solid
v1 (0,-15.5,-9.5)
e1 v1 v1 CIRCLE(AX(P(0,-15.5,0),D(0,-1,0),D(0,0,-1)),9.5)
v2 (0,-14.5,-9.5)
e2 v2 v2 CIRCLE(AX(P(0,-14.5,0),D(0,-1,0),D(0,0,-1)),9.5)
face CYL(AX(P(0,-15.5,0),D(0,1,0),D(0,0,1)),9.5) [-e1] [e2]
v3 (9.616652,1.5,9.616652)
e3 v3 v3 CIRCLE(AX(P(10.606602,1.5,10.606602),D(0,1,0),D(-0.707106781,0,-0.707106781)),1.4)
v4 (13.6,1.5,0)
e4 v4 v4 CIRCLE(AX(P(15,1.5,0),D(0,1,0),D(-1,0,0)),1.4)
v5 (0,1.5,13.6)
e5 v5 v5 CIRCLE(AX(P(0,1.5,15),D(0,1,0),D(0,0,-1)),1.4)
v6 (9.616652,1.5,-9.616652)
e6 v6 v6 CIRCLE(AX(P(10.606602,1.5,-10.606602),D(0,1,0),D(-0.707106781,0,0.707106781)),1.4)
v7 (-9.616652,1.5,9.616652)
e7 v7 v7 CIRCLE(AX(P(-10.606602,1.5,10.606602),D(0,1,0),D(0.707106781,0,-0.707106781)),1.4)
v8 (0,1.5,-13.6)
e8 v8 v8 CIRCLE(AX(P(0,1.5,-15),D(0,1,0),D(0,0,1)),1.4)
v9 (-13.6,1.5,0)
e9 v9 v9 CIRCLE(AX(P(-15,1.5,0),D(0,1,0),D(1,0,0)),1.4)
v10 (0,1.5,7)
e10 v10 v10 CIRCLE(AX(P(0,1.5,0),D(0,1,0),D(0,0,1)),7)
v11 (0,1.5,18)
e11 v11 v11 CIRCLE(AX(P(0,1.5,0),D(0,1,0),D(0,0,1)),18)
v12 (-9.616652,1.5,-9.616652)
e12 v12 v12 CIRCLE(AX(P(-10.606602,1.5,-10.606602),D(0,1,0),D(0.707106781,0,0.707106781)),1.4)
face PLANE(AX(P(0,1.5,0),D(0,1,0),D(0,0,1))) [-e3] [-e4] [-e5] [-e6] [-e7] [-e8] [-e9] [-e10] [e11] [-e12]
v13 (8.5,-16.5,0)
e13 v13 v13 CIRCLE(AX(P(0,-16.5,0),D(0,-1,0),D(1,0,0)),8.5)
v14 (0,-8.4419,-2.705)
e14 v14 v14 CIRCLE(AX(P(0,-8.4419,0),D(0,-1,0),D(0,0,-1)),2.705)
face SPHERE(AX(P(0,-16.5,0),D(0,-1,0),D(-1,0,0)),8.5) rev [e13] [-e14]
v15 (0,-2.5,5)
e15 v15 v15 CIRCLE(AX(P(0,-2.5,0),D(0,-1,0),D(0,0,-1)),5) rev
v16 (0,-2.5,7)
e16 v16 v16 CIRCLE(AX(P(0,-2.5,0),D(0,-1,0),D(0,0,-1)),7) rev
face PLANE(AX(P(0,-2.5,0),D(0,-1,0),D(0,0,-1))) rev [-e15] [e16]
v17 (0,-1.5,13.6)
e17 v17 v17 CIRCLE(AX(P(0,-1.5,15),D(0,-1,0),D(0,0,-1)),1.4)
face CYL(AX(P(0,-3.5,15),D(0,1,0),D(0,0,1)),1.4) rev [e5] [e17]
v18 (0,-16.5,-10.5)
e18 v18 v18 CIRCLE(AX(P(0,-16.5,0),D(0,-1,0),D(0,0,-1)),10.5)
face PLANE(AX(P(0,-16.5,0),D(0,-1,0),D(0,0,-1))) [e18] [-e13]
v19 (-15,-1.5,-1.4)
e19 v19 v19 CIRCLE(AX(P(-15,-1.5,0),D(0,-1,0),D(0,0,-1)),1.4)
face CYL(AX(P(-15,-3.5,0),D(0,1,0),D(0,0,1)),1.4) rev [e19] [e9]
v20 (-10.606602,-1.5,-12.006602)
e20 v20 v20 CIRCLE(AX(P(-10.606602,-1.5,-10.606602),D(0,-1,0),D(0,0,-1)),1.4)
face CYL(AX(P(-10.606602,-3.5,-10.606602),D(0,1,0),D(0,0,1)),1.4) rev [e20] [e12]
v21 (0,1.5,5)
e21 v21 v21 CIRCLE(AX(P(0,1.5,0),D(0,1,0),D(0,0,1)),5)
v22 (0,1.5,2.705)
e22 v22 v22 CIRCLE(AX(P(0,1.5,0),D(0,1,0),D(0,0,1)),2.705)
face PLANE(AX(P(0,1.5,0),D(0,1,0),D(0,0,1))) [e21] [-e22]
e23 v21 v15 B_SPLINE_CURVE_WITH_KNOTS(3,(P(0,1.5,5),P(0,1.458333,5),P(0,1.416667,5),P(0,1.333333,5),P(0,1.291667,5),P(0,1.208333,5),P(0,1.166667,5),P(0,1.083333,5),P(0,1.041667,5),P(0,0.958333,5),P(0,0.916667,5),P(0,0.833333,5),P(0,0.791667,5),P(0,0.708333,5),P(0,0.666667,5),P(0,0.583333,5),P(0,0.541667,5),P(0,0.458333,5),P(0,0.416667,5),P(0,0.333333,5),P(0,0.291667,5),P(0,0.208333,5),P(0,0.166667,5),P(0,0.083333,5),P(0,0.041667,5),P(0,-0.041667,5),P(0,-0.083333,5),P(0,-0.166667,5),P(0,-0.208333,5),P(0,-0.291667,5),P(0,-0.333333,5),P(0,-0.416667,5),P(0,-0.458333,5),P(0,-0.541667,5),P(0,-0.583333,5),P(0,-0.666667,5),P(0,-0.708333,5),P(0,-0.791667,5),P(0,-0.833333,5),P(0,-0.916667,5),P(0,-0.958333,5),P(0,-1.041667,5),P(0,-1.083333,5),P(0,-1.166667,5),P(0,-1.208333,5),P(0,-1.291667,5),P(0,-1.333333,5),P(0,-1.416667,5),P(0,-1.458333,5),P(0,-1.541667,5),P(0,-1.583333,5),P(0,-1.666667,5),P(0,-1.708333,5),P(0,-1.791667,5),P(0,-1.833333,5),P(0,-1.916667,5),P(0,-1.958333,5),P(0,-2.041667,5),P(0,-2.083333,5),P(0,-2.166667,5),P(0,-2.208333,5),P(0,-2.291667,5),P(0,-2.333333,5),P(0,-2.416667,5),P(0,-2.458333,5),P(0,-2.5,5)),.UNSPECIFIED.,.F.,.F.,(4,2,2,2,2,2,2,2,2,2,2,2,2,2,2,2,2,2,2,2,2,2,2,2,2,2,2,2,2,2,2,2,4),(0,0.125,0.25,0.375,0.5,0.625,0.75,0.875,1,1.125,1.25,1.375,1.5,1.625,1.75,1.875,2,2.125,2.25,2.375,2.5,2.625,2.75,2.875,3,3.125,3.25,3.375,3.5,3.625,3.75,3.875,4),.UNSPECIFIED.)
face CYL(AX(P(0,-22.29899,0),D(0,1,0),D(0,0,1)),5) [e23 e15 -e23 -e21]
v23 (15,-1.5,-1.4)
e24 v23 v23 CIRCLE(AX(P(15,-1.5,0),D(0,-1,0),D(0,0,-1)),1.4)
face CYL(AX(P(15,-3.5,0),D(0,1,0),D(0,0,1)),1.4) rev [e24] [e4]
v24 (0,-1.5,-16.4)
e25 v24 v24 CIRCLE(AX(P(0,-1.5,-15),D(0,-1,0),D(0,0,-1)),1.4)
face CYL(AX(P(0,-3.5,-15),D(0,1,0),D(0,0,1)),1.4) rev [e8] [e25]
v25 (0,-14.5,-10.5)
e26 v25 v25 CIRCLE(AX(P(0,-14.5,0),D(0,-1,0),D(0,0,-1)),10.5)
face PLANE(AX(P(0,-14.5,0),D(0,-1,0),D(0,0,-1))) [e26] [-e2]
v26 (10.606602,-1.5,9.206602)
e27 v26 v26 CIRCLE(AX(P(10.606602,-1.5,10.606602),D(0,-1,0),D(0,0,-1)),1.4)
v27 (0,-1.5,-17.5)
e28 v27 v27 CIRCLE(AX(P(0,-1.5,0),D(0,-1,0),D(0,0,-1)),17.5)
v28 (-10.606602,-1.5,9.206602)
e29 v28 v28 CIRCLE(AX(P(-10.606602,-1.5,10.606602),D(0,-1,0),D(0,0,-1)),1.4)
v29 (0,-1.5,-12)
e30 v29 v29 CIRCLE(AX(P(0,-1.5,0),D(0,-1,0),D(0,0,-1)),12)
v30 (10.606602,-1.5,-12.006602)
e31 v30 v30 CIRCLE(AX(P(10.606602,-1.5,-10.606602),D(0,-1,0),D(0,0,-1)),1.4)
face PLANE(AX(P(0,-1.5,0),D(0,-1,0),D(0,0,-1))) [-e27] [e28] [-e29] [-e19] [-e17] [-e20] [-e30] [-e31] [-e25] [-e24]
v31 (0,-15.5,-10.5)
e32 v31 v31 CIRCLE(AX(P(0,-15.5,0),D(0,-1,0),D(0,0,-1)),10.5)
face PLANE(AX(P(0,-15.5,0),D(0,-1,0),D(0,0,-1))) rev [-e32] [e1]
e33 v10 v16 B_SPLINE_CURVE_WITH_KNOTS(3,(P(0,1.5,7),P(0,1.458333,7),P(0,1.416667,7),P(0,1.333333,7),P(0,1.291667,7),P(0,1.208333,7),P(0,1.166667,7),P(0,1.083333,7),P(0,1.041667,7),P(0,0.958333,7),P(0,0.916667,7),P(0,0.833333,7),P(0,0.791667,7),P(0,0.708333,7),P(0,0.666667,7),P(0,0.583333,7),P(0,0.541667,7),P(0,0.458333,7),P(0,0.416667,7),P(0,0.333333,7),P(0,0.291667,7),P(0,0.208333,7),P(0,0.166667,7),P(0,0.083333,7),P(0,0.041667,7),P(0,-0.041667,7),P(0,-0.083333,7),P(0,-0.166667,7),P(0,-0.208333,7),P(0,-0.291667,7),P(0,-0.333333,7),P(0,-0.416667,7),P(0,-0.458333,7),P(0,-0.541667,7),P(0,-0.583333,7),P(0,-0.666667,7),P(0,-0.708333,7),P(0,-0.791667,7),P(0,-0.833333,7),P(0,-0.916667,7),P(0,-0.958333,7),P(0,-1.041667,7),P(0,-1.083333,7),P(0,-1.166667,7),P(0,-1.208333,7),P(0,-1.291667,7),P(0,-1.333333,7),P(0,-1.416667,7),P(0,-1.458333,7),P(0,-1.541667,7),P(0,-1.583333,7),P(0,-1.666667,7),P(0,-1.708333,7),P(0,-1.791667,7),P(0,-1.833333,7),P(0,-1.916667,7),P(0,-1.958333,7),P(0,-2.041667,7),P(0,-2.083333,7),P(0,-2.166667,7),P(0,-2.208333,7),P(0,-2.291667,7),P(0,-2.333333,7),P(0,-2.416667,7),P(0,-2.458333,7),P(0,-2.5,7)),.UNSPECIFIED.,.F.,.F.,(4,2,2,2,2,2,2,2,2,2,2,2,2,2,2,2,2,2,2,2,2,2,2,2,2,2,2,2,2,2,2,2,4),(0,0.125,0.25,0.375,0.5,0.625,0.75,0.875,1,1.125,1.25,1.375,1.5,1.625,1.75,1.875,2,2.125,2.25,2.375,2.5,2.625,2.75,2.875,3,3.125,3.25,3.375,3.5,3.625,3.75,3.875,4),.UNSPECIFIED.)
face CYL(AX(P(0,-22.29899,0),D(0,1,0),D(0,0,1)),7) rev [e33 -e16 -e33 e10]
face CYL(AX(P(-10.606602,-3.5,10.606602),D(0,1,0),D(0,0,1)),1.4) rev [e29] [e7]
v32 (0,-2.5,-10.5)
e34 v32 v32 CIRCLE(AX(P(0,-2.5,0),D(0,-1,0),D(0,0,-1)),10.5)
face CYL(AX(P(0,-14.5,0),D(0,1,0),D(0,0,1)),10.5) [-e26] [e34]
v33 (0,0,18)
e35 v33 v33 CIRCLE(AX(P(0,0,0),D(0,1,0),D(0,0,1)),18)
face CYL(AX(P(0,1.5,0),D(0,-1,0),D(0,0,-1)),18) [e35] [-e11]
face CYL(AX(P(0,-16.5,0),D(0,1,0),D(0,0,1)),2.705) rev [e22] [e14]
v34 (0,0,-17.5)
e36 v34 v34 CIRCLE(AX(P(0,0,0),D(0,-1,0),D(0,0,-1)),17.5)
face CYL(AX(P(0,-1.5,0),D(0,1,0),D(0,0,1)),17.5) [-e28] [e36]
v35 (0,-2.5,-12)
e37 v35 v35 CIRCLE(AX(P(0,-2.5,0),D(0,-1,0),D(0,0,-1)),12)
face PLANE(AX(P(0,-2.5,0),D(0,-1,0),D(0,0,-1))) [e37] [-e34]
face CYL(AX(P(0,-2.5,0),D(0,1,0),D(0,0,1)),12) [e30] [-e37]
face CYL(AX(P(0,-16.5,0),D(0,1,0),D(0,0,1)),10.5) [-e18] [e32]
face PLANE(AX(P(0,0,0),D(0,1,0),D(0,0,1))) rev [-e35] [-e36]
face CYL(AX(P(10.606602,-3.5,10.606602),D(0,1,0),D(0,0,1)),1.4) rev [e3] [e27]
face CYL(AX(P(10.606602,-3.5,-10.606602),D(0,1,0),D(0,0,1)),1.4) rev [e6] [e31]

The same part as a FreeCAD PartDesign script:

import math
import FreeCAD as App
import Part
import Sketcher

V = App.Vector

doc = App.newDocument("Part")
body = doc.addObject("PartDesign::Body", "Body")

# Sketch on XZ plane
sketch1 = body.newObject("Sketcher::SketchObject", "Sketch")
sketch1.AttachmentSupport = (doc.getObject("XZ_Plane"), [""])
sketch1.MapMode = "FlatFace"
sketch1.addGeometry(Part.Circle(V(0, 0, 0), V(0, 0, 1), 18), False)
sketch1.addConstraint([
    Sketcher.Constraint("Coincident", 0, 3, -1, 1),
    Sketcher.Constraint("Diameter", 0, 36.0),
])
pad1 = body.newObject("PartDesign::Pad", "Pad")
pad1.Profile = sketch1
pad1.Length = 1.5
pad1.Reversed = True

# Sketch on XZ plane
sketch2 = body.newObject("Sketcher::SketchObject", "Sketch001")
sketch2.AttachmentSupport = (doc.getObject("XZ_Plane"), [""])
sketch2.MapMode = "FlatFace"
sketch2.addGeometry(Part.Circle(V(0, 0, 0), V(0, 0, 1), 18), False)
sketch2.addConstraint([
    Sketcher.Constraint("Coincident", 0, 3, -1, 1),
    Sketcher.Constraint("Diameter", 0, 35.0),
])
pad2 = body.newObject("PartDesign::Pad", "Pad001")
pad2.Profile = sketch2
pad2.Length = 1.5

# Sketch on XZ plane
sketch3 = body.newObject("Sketcher::SketchObject", "Sketch002")
sketch3.AttachmentSupport = (doc.getObject("XZ_Plane"), [""])
sketch3.MapMode = "FlatFace"
sketch3.AttachmentOffset = App.Placement(V(0, 0, 1.5), App.Rotation())
sketch3.addGeometry(Part.Circle(V(0, 0, 0), V(0, 0, 1), 12), False)
sketch3.addConstraint([
    Sketcher.Constraint("Coincident", 0, 3, -1, 1),
    Sketcher.Constraint("Diameter", 0, 24.0),
])
pad3 = body.newObject("PartDesign::Pad", "Pad002")
pad3.Profile = sketch3
pad3.Length = 1

# Sketch on XZ plane
sketch4 = body.newObject("Sketcher::SketchObject", "Sketch003")
sketch4.AttachmentSupport = (doc.getObject("XZ_Plane"), [""])
sketch4.MapMode = "FlatFace"
sketch4.AttachmentOffset = App.Placement(V(0, 0, 2.5), App.Rotation())
sketch4.addGeometry(Part.Circle(V(0, 0, 0), V(0, 0, 1), 10), False)
sketch4.addConstraint([
    Sketcher.Constraint("Coincident", 0, 3, -1, 1),
    Sketcher.Constraint("Diameter", 0, 21.0),
])
pad4 = body.newObject("PartDesign::Pad", "Pad003")
pad4.Profile = sketch4
pad4.Length = 12

# Sketch on XZ plane
sketch5 = body.newObject("Sketcher::SketchObject", "Sketch004")
sketch5.AttachmentSupport = (doc.getObject("XZ_Plane"), [""])
sketch5.MapMode = "FlatFace"
sketch5.AttachmentOffset = App.Placement(V(0, 0, 14.5), App.Rotation())
sketch5.addGeometry(Part.Circle(V(0, 0, 0), V(0, 0, 1), 10), False)
sketch5.addConstraint([
    Sketcher.Constraint("Coincident", 0, 3, -1, 1),
    Sketcher.Constraint("Diameter", 0, 19.0),
])
pad5 = body.newObject("PartDesign::Pad", "Pad004")
pad5.Profile = sketch5
pad5.Length = 1

# Sketch on XZ plane
sketch6 = body.newObject("Sketcher::SketchObject", "Sketch005")
sketch6.AttachmentSupport = (doc.getObject("XZ_Plane"), [""])
sketch6.MapMode = "FlatFace"
sketch6.AttachmentOffset = App.Placement(V(0, 0, 15.5), App.Rotation())
sketch6.addGeometry(Part.Circle(V(0, 0, 0), V(0, 0, 1), 10), False)
sketch6.addConstraint([
    Sketcher.Constraint("Coincident", 0, 3, -1, 1),
    Sketcher.Constraint("Diameter", 0, 21.0),
])
pad6 = body.newObject("PartDesign::Pad", "Pad005")
pad6.Profile = sketch6
pad6.Length = 1

# Sketch on XY plane
sketch7 = body.newObject("Sketcher::SketchObject", "Sketch006")
sketch7.AttachmentSupport = (doc.getObject("XY_Plane"), [""])
sketch7.MapMode = "FlatFace"
sketch7.addGeometry([
    Part.LineSegment(V(-8, -16, 0), V(0, -16, 0)),
    Part.LineSegment(V(0, -16, 0), V(0, -8, 0)),
    Part.ArcOfCircle(Part.Circle(V(0, -16, 0), V(0, 0, 1), 8), math.radians(90), math.radians(180)),
], False)
sketch7.addConstraint([
    Sketcher.Constraint("Coincident", 0, 2, 1, 1),
    Sketcher.Constraint("Coincident", 1, 2, 2, 1),
    Sketcher.Constraint("Coincident", 2, 2, 0, 1),
    Sketcher.Constraint("Horizontal", 0),
    Sketcher.Constraint("Vertical", 1),
    Sketcher.Constraint("Coincident", 0, 2, 2, 3),
    Sketcher.Constraint("PointOnObject", 2, 3, -2),
    Sketcher.Constraint("Radius", 2, 8.5),
    Sketcher.Constraint("DistanceY", 1, 2, -1, 1, 8.0),
])
groove = body.newObject("PartDesign::Groove", "Groove")
groove.Profile = sketch7
groove.ReferenceAxis = (sketch7, ["V_Axis"])
groove.Angle = 360

# Sketch on XZ plane
sketch8 = body.newObject("Sketcher::SketchObject", "Sketch007")
sketch8.AttachmentSupport = (doc.getObject("XZ_Plane"), [""])
sketch8.MapMode = "FlatFace"
sketch8.AttachmentOffset = App.Placement(V(0, 0, -1.5), App.Rotation())
sketch8.addGeometry(Part.Circle(V(0, 0, 0), V(0, 0, 1), 2.7), False)
sketch8.addConstraint([
    Sketcher.Constraint("Coincident", 0, 3, -1, 1),
    Sketcher.Constraint("Diameter", 0, 5.41),
])
pocket1 = body.newObject("PartDesign::Pocket", "Pocket")
pocket1.Profile = sketch8
pocket1.Type = "ThroughAll"
pocket1.Reversed = True

# Sketch on XZ plane
sketch9 = body.newObject("Sketcher::SketchObject", "Sketch008")
sketch9.AttachmentSupport = (doc.getObject("XZ_Plane"), [""])
sketch9.MapMode = "FlatFace"
sketch9.AttachmentOffset = App.Placement(V(0, 0, -1.5), App.Rotation())
sketch9.addGeometry([
    Part.Circle(V(0, 0, 0), V(0, 0, 1), 7),
    Part.Circle(V(0, 0, 0), V(0, 0, 1), 5),
], False)
sketch9.addConstraint([
    Sketcher.Constraint("Coincident", 0, 3, -1, 1),
    Sketcher.Constraint("Coincident", 1, 3, -1, 1),
    Sketcher.Constraint("Diameter", 0, 14.0),
    Sketcher.Constraint("Diameter", 1, 10.0),
])
pocket2 = body.newObject("PartDesign::Pocket", "Pocket001")
pocket2.Profile = sketch9
pocket2.Length = 4
pocket2.Reversed = True

# Sketch on XZ plane
sketch10 = body.newObject("Sketcher::SketchObject", "Sketch009")
sketch10.AttachmentSupport = (doc.getObject("XZ_Plane"), [""])
sketch10.MapMode = "FlatFace"
sketch10.AttachmentOffset = App.Placement(V(0, 0, -1.5), App.Rotation())
sketch10.addGeometry(Part.Circle(V(0, -15, 0), V(0, 0, 1), 1.4), False)
sketch10.addConstraint([
    Sketcher.Constraint("PointOnObject", 0, 3, -2),
    Sketcher.Constraint("Diameter", 0, 2.8),
    Sketcher.Constraint("DistanceY", 0, 3, -1, 1, 15.0),
])
pocket3 = body.newObject("PartDesign::Pocket", "Pocket002")
pocket3.Profile = sketch10
pocket3.Length = 5
pocket3.Reversed = True
doc.recompute()

polarpattern = body.newObject("PartDesign::PolarPattern", "PolarPattern")
polarpattern.Originals = [pocket3]
polarpattern.Axis = (doc.getObject("Y_Axis"), [""])
polarpattern.Angle = 360
polarpattern.Occurrences = 8
body.Tip = polarpattern

doc.recompute()
